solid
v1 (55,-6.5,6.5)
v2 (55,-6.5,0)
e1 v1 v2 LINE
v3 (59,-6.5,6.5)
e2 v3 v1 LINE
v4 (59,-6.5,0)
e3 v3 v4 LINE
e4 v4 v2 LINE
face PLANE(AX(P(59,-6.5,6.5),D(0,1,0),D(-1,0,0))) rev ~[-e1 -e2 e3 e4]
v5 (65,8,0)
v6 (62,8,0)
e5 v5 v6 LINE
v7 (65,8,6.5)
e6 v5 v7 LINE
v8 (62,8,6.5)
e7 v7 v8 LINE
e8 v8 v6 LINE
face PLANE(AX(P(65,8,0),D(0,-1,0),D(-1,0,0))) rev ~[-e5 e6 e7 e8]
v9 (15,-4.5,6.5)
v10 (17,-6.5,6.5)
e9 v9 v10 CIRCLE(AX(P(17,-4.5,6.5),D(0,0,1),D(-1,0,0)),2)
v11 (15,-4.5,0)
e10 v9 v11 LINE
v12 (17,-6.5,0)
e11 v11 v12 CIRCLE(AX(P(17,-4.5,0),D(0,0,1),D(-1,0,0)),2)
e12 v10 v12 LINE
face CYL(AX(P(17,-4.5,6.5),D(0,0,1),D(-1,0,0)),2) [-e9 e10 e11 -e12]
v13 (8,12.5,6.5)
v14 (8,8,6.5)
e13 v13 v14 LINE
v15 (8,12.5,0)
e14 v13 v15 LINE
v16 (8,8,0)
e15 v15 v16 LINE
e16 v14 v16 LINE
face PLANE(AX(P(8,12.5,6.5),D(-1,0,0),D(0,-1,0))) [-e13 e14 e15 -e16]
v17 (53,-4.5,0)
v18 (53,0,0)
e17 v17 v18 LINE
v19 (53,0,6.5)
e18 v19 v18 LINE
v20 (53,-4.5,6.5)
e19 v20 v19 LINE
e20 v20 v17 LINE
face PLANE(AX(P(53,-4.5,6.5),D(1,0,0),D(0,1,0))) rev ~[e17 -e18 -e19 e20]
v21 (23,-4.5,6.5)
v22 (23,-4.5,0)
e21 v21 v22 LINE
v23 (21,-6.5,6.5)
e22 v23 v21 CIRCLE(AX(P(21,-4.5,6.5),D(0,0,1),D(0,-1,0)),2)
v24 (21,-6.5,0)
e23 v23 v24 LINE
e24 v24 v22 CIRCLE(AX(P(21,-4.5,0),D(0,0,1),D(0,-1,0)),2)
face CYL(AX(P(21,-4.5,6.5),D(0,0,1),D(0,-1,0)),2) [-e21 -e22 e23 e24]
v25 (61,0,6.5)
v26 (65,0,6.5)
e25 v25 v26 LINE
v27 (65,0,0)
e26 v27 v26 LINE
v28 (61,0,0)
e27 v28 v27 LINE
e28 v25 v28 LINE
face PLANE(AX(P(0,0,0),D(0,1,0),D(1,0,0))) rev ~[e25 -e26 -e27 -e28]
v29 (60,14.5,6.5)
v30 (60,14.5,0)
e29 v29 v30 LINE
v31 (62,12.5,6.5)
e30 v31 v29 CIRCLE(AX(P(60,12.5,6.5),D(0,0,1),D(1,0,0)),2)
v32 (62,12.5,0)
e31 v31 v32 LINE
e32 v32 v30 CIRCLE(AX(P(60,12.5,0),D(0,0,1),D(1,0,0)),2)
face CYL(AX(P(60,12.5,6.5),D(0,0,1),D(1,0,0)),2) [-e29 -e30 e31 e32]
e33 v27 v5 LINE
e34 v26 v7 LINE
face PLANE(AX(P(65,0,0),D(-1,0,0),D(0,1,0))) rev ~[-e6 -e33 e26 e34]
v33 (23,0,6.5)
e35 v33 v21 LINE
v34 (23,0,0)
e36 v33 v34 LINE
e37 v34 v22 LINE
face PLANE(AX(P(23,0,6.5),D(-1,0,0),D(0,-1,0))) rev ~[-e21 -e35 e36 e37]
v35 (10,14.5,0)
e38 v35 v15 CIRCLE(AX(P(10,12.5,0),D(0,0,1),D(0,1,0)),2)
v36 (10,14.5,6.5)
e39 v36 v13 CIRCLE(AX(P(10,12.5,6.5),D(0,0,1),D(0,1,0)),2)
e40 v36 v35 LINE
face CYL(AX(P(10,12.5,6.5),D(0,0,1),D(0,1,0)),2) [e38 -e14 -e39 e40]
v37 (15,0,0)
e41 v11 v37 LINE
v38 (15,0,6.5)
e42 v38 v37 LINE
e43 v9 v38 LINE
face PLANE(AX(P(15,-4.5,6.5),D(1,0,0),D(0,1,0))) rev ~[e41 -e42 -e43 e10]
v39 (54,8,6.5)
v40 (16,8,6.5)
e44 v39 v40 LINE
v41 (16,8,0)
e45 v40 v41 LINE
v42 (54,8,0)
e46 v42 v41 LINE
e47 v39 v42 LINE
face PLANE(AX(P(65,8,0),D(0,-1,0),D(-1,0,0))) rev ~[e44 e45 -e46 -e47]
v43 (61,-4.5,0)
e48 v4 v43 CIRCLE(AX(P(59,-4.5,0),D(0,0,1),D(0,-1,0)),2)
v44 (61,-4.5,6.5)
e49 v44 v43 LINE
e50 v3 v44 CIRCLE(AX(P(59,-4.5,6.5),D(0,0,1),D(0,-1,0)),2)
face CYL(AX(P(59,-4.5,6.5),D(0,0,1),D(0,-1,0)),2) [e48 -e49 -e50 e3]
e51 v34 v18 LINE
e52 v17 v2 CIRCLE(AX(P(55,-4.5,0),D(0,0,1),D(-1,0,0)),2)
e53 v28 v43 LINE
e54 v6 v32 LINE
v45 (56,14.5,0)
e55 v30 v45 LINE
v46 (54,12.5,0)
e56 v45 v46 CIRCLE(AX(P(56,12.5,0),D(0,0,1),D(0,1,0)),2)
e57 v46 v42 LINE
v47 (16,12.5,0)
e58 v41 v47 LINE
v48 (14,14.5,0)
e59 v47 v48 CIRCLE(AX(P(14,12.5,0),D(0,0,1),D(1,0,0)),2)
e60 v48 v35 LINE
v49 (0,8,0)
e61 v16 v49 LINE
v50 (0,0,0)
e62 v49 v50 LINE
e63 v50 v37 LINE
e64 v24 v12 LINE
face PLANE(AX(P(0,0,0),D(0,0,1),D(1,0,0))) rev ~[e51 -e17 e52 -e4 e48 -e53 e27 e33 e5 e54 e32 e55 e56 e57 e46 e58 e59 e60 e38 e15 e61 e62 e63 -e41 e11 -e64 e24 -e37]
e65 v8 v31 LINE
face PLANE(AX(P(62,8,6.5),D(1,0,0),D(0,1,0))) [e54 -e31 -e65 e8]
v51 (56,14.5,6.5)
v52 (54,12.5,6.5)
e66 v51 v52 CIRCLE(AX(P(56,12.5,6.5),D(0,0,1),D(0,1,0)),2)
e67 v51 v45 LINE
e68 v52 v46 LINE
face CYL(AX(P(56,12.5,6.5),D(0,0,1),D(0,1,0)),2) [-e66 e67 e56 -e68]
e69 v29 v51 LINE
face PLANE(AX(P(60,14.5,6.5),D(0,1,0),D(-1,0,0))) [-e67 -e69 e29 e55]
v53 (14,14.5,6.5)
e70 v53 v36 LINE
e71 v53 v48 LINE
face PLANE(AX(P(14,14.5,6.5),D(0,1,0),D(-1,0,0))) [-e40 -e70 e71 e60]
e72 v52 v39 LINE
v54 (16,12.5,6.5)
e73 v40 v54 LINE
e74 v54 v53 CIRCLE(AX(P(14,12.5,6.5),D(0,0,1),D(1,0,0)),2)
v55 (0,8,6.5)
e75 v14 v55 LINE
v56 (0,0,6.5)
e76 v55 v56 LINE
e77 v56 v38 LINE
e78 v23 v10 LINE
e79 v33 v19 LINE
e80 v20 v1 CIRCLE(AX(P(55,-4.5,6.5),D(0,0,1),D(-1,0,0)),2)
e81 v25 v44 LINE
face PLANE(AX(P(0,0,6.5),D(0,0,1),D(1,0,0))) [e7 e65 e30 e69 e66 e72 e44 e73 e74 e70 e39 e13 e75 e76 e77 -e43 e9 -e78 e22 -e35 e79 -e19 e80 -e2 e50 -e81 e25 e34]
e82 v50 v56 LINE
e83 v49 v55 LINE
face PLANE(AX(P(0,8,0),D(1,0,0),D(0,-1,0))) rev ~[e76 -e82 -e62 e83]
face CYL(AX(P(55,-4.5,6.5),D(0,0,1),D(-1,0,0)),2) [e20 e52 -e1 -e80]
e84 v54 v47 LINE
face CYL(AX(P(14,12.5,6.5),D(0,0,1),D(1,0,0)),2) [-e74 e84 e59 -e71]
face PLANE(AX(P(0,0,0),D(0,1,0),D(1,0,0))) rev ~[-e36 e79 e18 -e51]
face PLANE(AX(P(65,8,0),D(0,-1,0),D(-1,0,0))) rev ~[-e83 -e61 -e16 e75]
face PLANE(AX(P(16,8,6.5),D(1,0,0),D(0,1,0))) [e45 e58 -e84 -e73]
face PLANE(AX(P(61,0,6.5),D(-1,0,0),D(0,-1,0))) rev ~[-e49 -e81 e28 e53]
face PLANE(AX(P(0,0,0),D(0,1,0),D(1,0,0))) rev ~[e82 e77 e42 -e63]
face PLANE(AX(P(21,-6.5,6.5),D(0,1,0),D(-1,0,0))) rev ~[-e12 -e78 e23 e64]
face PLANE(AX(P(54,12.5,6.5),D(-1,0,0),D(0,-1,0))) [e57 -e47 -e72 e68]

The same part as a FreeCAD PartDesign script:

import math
import FreeCAD as App
import Part
import Sketcher

V = App.Vector
Q = App.Units.Quantity

doc = App.newDocument("Part")
body = doc.addObject("PartDesign::Body", "Body")

sketch1 = body.newObject("Sketcher::SketchObject", "Sketch")
sketch1.AttachmentSupport = (doc.getObject("XY_Plane"), [""])
sketch1.MapMode = "FlatFace"
sketch1.addGeometry(Part.LineSegment(V(0, 8, 0), V(0, 0, 0)), False)
sketch1.addGeometry(Part.LineSegment(V(0, 0, 0), V(65, 0, 0)), False)
sketch1.addGeometry(Part.LineSegment(V(65, 0, 0), V(65, 8, 0)), False)
sketch1.addGeometry(Part.LineSegment(V(65, 8, 0), V(0, 8, 0)), False)
sketch1.addConstraint(Sketcher.Constraint("Coincident", 0, 2, 1, 1))
sketch1.addConstraint(Sketcher.Constraint("Coincident", 1, 2, 2, 1))
sketch1.addConstraint(Sketcher.Constraint("Coincident", 2, 2, 3, 1))
sketch1.addConstraint(Sketcher.Constraint("Coincident", 3, 2, 0, 1))
sketch1.addConstraint(Sketcher.Constraint("Vertical", 0))
sketch1.addConstraint(Sketcher.Constraint("Horizontal", 1))
sketch1.addConstraint(Sketcher.Constraint("Vertical", 2))
sketch1.addConstraint(Sketcher.Constraint("Horizontal", 3))
sketch1.addConstraint(Sketcher.Constraint("Coincident", 0, 2, -1, 1))
sketch1.addConstraint(Sketcher.Constraint("DistanceX", 1, 1, 1, 2, Q("65 mm")))
sketch1.addConstraint(Sketcher.Constraint("DistanceY", 0, 2, 0, 1, Q("8 mm")))
pad1 = body.newObject("PartDesign::Pad", "Pad")
pad1.Profile = sketch1
pad1.Length = 6.5

sketch2 = body.newObject("Sketcher::SketchObject", "Sketch001")
sketch2.AttachmentSupport = (doc.getObject("XY_Plane"), [""])
sketch2.MapMode = "FlatFace"
sketch2.AttachmentOffset = App.Placement(V(0, 0, 6.5), App.Rotation())
sketch2.addGeometry(Part.LineSegment(V(61, 0, 0), V(53, 0, 0)), False)
sketch2.addGeometry(Part.LineSegment(V(53, 0, 0), V(53, -4.5, 0)), False)
sketch2.addGeometry(Part.ArcOfCircle(Part.Circle(V(55, -4.5, 0), V(0, 0, 1), 2), math.radians(180), math.radians(270)), False)
sketch2.addGeometry(Part.LineSegment(V(55, -6.5, 0), V(59, -6.5, 0)), False)
sketch2.addGeometry(Part.ArcOfCircle(Part.Circle(V(59, -4.5, 0), V(0, 0, 1), 2), math.radians(-90), math.radians(0)), False)
sketch2.addGeometry(Part.LineSegment(V(61, -4.5, 0), V(61, 0, 0)), False)
sketch2.addGeometry(Part.LineSegment(V(23, 0, 0), V(15, 0, 0)), False)
sketch2.addGeometry(Part.LineSegment(V(15, 0, 0), V(15, -4.5, 0)), False)
sketch2.addGeometry(Part.ArcOfCircle(Part.Circle(V(17, -4.5, 0), V(0, 0, 1), 2), math.radians(180), math.radians(270)), False)
sketch2.addGeometry(Part.LineSegment(V(17, -6.5, 0), V(21, -6.5, 0)), False)
sketch2.addGeometry(Part.ArcOfCircle(Part.Circle(V(21, -4.5, 0), V(0, 0, 1), 2), math.radians(-90), math.radians(0)), False)
sketch2.addGeometry(Part.LineSegment(V(23, -4.5, 0), V(23, 0, 0)), False)
sketch2.addGeometry(Part.LineSegment(V(54, 12.5, 0), V(54, 8, 0)), False)
sketch2.addGeometry(Part.LineSegment(V(54, 8, 0), V(62, 8, 0)), False)
sketch2.addGeometry(Part.LineSegment(V(62, 8, 0), V(62, 12.5, 0)), False)
sketch2.addGeometry(Part.ArcOfCircle(Part.Circle(V(60, 12.5, 0), V(0, 0, 1), 2), math.radians(0), math.radians(90)), False)
sketch2.addGeometry(Part.LineSegment(V(60, 14.5, 0), V(56, 14.5, 0)), False)
sketch2.addGeometry(Part.ArcOfCircle(Part.Circle(V(56, 12.5, 0), V(0, 0, 1), 2), math.radians(90), math.radians(180)), False)
sketch2.addGeometry(Part.LineSegment(V(8, 12.5, 0), V(8, 8, 0)), False)
sketch2.addGeometry(Part.LineSegment(V(8, 8, 0), V(16, 8, 0)), False)
sketch2.addGeometry(Part.LineSegment(V(16, 8, 0), V(16, 12.5, 0)), False)
sketch2.addGeometry(Part.ArcOfCircle(Part.Circle(V(14, 12.5, 0), V(0, 0, 1), 2), math.radians(0), math.radians(90)), False)
sketch2.addGeometry(Part.LineSegment(V(14, 14.5, 0), V(10, 14.5, 0)), False)
sketch2.addGeometry(Part.ArcOfCircle(Part.Circle(V(10, 12.5, 0), V(0, 0, 1), 2), math.radians(90), math.radians(180)), False)
sketch2.addConstraint(Sketcher.Constraint("Coincident", 0, 2, 1, 1))
sketch2.addConstraint(Sketcher.Constraint("Tangent", 1, 2, 2, 1))
sketch2.addConstraint(Sketcher.Constraint("Tangent", 2, 2, 3, 1))
sketch2.addConstraint(Sketcher.Constraint("Tangent", 3, 2, 4, 1))
sketch2.addConstraint(Sketcher.Constraint("Tangent", 4, 2, 5, 1))
sketch2.addConstraint(Sketcher.Constraint("Coincident", 5, 2, 0, 1))
sketch2.addConstraint(Sketcher.Constraint("Coincident", 6, 2, 7, 1))
sketch2.addConstraint(Sketcher.Constraint("Tangent", 7, 2, 8, 1))
sketch2.addConstraint(Sketcher.Constraint("Tangent", 8, 2, 9, 1))
sketch2.addConstraint(Sketcher.Constraint("Tangent", 9, 2, 10, 1))
sketch2.addConstraint(Sketcher.Constraint("Tangent", 10, 2, 11, 1))
sketch2.addConstraint(Sketcher.Constraint("Coincident", 11, 2, 6, 1))
sketch2.addConstraint(Sketcher.Constraint("Coincident", 12, 2, 13, 1))
sketch2.addConstraint(Sketcher.Constraint("Coincident", 13, 2, 14, 1))
sketch2.addConstraint(Sketcher.Constraint("Tangent", 14, 2, 15, 1))
sketch2.addConstraint(Sketcher.Constraint("Tangent", 15, 2, 16, 1))
sketch2.addConstraint(Sketcher.Constraint("Tangent", 16, 2, 17, 1))
sketch2.addConstraint(Sketcher.Constraint("Tangent", 17, 2, 12, 1))
sketch2.addConstraint(Sketcher.Constraint("Coincident", 18, 2, 19, 1))
sketch2.addConstraint(Sketcher.Constraint("Coincident", 19, 2, 20, 1))
sketch2.addConstraint(Sketcher.Constraint("Tangent", 20, 2, 21, 1))
sketch2.addConstraint(Sketcher.Constraint("Tangent", 21, 2, 22, 1))
sketch2.addConstraint(Sketcher.Constraint("Tangent", 22, 2, 23, 1))
sketch2.addConstraint(Sketcher.Constraint("Tangent", 23, 2, 18, 1))
sketch2.addConstraint(Sketcher.Constraint("Horizontal", 0))
sketch2.addConstraint(Sketcher.Constraint("Vertical", 1))
sketch2.addConstraint(Sketcher.Constraint("Horizontal", 3))
sketch2.addConstraint(Sketcher.Constraint("Vertical", 5))
sketch2.addConstraint(Sketcher.Constraint("Horizontal", 6))
sketch2.addConstraint(Sketcher.Constraint("Vertical", 7))
sketch2.addConstraint(Sketcher.Constraint("Horizontal", 9))
sketch2.addConstraint(Sketcher.Constraint("Vertical", 11))
sketch2.addConstraint(Sketcher.Constraint("Vertical", 12))
sketch2.addConstraint(Sketcher.Constraint("Horizontal", 13))
sketch2.addConstraint(Sketcher.Constraint("Vertical", 14))
sketch2.addConstraint(Sketcher.Constraint("Horizontal", 16))
sketch2.addConstraint(Sketcher.Constraint("Vertical", 18))
sketch2.addConstraint(Sketcher.Constraint("Horizontal", 19))
sketch2.addConstraint(Sketcher.Constraint("Vertical", 20))
sketch2.addConstraint(Sketcher.Constraint("Horizontal", 22))
sketch2.addConstraint(Sketcher.Constraint("Equal", 2, 4))
sketch2.addConstraint(Sketcher.Constraint("Equal", 4, 8))
sketch2.addConstraint(Sketcher.Constraint("Equal", 8, 10))
sketch2.addConstraint(Sketcher.Constraint("Equal", 10, 15))
sketch2.addConstraint(Sketcher.Constraint("Equal", 15, 17))
sketch2.addConstraint(Sketcher.Constraint("Equal", 17, 21))
sketch2.addConstraint(Sketcher.Constraint("Equal", 21, 23))
sketch2.addConstraint(Sketcher.Constraint("PointOnObject", 0, 2, -1))
sketch2.addConstraint(Sketcher.Constraint("PointOnObject", 6, 2, -1))
sketch2.addConstraint(Sketcher.Constraint("Horizontal", 4, 3, 8, 3))
sketch2.addConstraint(Sketcher.Constraint("Horizontal", 17, 3, 21, 3))
sketch2.addConstraint(Sketcher.Constraint("Horizontal", 13, 2, 18, 2))
sketch2.addConstraint(Sketcher.Constraint("Equal", 0, 6))
sketch2.addConstraint(Sketcher.Constraint("Equal", 6, 13))
sketch2.addConstraint(Sketcher.Constraint("Equal", 13, 19))
sketch2.addConstraint(Sketcher.Constraint("Equal", 11, 12))
sketch2.addConstraint(Sketcher.Constraint("Radius", 2, Q("2 mm")))
sketch2.addConstraint(Sketcher.Constraint("DistanceX", 0, 2, 0, 1, Q("8 mm")))
sketch2.addConstraint(Sketcher.Constraint("DistanceX", -1, 1, 6, 2, Q("15 mm")))
sketch2.addConstraint(Sketcher.Constraint("DistanceY", -1, 1, 12, 2, Q("8 mm")))
sketch2.addConstraint(Sketcher.Constraint("DistanceX", -1, 1, 18, 2, Q("8 mm")))
sketch2.addConstraint(Sketcher.Constraint("DistanceX", 8, 3, 2, 3, Q("38 mm")))
sketch2.addConstraint(Sketcher.Constraint("DistanceY", 2, 2, -1, 1, Q("6.5 mm")))
sketch2.addConstraint(Sketcher.Constraint("DistanceX", -1, 1, 15, 3, Q("60 mm")))
pad2 = body.newObject("PartDesign::Pad", "Pad001")
pad2.Profile = sketch2
pad2.Length = 6.5
pad2.Reversed = True

doc.recompute()
